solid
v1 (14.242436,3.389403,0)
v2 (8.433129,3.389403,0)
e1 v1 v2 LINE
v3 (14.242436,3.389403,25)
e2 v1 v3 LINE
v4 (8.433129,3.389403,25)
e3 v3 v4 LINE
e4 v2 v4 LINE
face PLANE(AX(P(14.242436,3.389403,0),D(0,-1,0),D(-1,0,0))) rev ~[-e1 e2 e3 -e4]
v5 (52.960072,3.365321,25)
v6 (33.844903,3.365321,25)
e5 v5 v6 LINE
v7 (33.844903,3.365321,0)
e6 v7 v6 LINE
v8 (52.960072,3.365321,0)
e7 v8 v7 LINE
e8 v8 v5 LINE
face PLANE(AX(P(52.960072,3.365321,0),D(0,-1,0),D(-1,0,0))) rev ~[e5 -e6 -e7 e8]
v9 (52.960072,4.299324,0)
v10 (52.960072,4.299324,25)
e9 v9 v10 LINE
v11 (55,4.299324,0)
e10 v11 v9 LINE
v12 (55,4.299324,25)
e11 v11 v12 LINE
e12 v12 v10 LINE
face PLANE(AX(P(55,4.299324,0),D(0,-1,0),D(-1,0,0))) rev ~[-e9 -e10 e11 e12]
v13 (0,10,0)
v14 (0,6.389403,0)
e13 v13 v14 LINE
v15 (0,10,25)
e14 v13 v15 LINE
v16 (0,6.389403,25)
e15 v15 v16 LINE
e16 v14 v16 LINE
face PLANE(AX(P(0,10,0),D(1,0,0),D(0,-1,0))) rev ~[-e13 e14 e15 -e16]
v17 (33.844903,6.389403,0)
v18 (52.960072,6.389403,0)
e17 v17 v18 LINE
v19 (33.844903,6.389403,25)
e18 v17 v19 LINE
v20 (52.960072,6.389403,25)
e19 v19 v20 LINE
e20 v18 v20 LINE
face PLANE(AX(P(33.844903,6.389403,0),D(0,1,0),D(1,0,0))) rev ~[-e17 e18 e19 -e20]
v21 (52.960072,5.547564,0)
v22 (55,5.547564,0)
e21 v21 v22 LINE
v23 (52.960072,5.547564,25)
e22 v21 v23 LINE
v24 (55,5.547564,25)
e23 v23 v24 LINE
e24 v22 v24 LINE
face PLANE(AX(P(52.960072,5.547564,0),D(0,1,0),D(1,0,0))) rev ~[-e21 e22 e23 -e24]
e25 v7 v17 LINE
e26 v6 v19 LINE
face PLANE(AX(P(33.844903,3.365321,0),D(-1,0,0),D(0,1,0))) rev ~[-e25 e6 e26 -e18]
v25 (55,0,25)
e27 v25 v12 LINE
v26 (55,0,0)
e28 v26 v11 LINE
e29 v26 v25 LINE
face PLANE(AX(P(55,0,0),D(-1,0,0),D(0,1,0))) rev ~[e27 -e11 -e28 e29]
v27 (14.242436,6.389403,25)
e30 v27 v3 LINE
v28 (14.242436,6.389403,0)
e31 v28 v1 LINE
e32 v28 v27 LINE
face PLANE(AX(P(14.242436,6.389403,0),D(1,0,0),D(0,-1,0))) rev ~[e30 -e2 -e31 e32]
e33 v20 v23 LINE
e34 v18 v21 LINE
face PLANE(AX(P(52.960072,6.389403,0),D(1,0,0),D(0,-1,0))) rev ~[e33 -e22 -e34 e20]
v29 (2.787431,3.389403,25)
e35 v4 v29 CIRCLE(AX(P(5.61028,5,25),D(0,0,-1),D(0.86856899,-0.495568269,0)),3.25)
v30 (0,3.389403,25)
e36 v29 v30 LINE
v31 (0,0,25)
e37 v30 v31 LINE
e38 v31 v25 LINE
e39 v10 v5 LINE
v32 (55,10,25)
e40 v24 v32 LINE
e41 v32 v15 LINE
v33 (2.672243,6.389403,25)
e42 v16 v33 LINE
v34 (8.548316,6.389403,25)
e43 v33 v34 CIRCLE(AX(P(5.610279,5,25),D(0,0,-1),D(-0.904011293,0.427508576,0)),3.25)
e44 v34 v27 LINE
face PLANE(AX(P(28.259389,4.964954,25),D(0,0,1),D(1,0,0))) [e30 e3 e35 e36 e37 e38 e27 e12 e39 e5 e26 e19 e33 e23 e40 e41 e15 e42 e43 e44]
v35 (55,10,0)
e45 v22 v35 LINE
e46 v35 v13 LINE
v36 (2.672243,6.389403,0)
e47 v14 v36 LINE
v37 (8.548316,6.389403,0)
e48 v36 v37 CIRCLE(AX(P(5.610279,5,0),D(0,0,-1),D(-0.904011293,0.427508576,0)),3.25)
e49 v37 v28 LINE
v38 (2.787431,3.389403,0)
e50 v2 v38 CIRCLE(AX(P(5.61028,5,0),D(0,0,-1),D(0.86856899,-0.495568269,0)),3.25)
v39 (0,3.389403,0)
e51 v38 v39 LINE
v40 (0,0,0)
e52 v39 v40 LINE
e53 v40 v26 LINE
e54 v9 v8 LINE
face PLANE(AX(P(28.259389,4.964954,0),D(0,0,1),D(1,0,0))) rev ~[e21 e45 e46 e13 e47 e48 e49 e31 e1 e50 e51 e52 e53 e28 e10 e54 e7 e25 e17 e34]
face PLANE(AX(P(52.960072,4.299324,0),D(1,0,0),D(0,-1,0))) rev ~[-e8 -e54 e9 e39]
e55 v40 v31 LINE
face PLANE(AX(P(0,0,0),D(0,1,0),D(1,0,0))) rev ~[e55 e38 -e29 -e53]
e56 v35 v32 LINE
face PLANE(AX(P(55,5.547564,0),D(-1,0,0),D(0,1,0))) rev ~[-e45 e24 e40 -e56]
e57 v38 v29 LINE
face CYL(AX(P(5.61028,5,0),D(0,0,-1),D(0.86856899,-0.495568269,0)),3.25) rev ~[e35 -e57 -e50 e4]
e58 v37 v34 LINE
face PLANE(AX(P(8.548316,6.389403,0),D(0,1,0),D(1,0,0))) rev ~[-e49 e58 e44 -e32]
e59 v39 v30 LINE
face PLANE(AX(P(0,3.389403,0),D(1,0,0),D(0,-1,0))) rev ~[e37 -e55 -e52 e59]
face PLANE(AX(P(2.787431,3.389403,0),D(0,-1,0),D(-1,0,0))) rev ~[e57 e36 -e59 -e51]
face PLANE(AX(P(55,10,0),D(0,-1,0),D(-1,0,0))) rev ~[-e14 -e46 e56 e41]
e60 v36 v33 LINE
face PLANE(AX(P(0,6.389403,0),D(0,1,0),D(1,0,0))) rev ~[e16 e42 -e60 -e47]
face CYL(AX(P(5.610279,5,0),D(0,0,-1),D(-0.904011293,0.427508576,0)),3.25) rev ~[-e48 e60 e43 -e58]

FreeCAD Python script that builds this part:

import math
import FreeCAD as App
import Part
import Sketcher

V = App.Vector

doc = App.newDocument("Part")
body = doc.addObject("PartDesign::Body", "Body")

# Sketch on XY plane
sketch1 = doc.addObject("Sketcher::SketchObject", "Sketch")
body.addObject(sketch1)
sketch1.AttachmentSupport = (doc.XY_Plane, [""])
sketch1.MapMode = "FlatFace"
sketch1.addGeometry(Part.LineSegment(V(0, 3.389403, 0), V(0, 0, 0)), False)
sketch1.addGeometry(Part.LineSegment(V(0, 0, 0), V(55, 0, 0)), False)
sketch1.addGeometry(Part.LineSegment(V(55, 0, 0), V(55, 4.299324, 0)), False)
sketch1.addGeometry(Part.LineSegment(V(55, 4.299324, 0), V(52.960072, 4.299324, 0)), False)
sketch1.addGeometry(Part.LineSegment(V(52.960072, 4.299324, 0), V(52.960072, 3.365321, 0)), False)
sketch1.addGeometry(Part.LineSegment(V(52.960072, 3.365321, 0), V(33.844903, 3.365321, 0)), False)
sketch1.addGeometry(Part.LineSegment(V(33.844903, 3.365321, 0), V(33.844903, 6.389403, 0)), False)
sketch1.addGeometry(Part.LineSegment(V(33.844903, 6.389403, 0), V(52.960072, 6.389403, 0)), False)
sketch1.addGeometry(Part.LineSegment(V(52.960072, 6.389403, 0), V(52.960072, 5.547564, 0)), False)
sketch1.addGeometry(Part.LineSegment(V(52.960072, 5.547564, 0), V(55, 5.547564, 0)), False)
sketch1.addGeometry(Part.LineSegment(V(55, 5.547564, 0), V(55, 10, 0)), False)
sketch1.addGeometry(Part.LineSegment(V(55, 10, 0), V(0, 10, 0)), False)
sketch1.addGeometry(Part.LineSegment(V(0, 10, 0), V(0, 6.389403, 0)), False)
sketch1.addGeometry(Part.LineSegment(V(0, 6.389403, 0), V(2.672243, 6.389403, 0)), False)
sketch1.addGeometry(Part.ArcOfCircle(Part.Circle(V(5.610279, 5, 0), V(0, 0, 1), 3.25), math.radians(25.309552), math.radians(154.690448)), False)
sketch1.addGeometry(Part.LineSegment(V(8.548316, 6.389403, 0), V(14.242436, 6.389403, 0)), False)
sketch1.addGeometry(Part.LineSegment(V(14.242436, 6.389403, 0), V(14.242436, 3.389403, 0)), False)
sketch1.addGeometry(Part.LineSegment(V(14.242436, 3.389403, 0), V(8.433129, 3.389403, 0)), False)
sketch1.addGeometry(Part.ArcOfCircle(Part.Circle(V(5.61028, 5, 0), V(0, 0, 1), 3.25), math.radians(-150.29277), math.radians(-29.70723)), False)
sketch1.addGeometry(Part.LineSegment(V(2.787431, 3.389403, 0), V(0, 3.389403, 0)), False)
sketch1.addConstraint(Sketcher.Constraint("Coincident", 0, 2, 1, 1))
sketch1.addConstraint(Sketcher.Constraint("Coincident", 1, 2, 2, 1))
sketch1.addConstraint(Sketcher.Constraint("Coincident", 2, 2, 3, 1))
sketch1.addConstraint(Sketcher.Constraint("Coincident", 3, 2, 4, 1))
sketch1.addConstraint(Sketcher.Constraint("Coincident", 4, 2, 5, 1))
sketch1.addConstraint(Sketcher.Constraint("Coincident", 5, 2, 6, 1))
sketch1.addConstraint(Sketcher.Constraint("Coincident", 6, 2, 7, 1))
sketch1.addConstraint(Sketcher.Constraint("Coincident", 7, 2, 8, 1))
sketch1.addConstraint(Sketcher.Constraint("Coincident", 8, 2, 9, 1))
sketch1.addConstraint(Sketcher.Constraint("Coincident", 9, 2, 10, 1))
sketch1.addConstraint(Sketcher.Constraint("Coincident", 10, 2, 11, 1))
sketch1.addConstraint(Sketcher.Constraint("Coincident", 11, 2, 12, 1))
sketch1.addConstraint(Sketcher.Constraint("Coincident", 12, 2, 13, 1))
sketch1.addConstraint(Sketcher.Constraint("Coincident", 13, 2, 14, 2))
sketch1.addConstraint(Sketcher.Constraint("Coincident", 14, 1, 15, 1))
sketch1.addConstraint(Sketcher.Constraint("Coincident", 15, 2, 16, 1))
sketch1.addConstraint(Sketcher.Constraint("Coincident", 16, 2, 17, 1))
sketch1.addConstraint(Sketcher.Constraint("Coincident", 17, 2, 18, 2))
sketch1.addConstraint(Sketcher.Constraint("Coincident", 18, 1, 19, 1))
sketch1.addConstraint(Sketcher.Constraint("Coincident", 19, 2, 0, 1))
sketch1.addConstraint(Sketcher.Constraint("Vertical", 0))
sketch1.addConstraint(Sketcher.Constraint("Horizontal", 1))
sketch1.addConstraint(Sketcher.Constraint("Vertical", 2))
sketch1.addConstraint(Sketcher.Constraint("Horizontal", 3))
sketch1.addConstraint(Sketcher.Constraint("Vertical", 4))
sketch1.addConstraint(Sketcher.Constraint("Horizontal", 5))
sketch1.addConstraint(Sketcher.Constraint("Vertical", 6))
sketch1.addConstraint(Sketcher.Constraint("Horizontal", 7))
sketch1.addConstraint(Sketcher.Constraint("Vertical", 8))
sketch1.addConstraint(Sketcher.Constraint("Horizontal", 9))
sketch1.addConstraint(Sketcher.Constraint("Vertical", 10))
sketch1.addConstraint(Sketcher.Constraint("Horizontal", 11))
sketch1.addConstraint(Sketcher.Constraint("Vertical", 12))
sketch1.addConstraint(Sketcher.Constraint("Horizontal", 13))
sketch1.addConstraint(Sketcher.Constraint("Horizontal", 15))
sketch1.addConstraint(Sketcher.Constraint("Vertical", 16))
sketch1.addConstraint(Sketcher.Constraint("Horizontal", 17))
sketch1.addConstraint(Sketcher.Constraint("Horizontal", 19))
sketch1.addConstraint(Sketcher.Constraint("Coincident", 0, 2, -1, 1))
sketch1.addConstraint(Sketcher.Constraint("Coincident", 18, 3, 14, 3))
sketch1.addConstraint(Sketcher.Constraint("Equal", 14, 18))
sketch1.addConstraint(Sketcher.Constraint("PointOnObject", 11, 2, -2))
sketch1.addConstraint(Sketcher.Constraint("Horizontal", 7, 2, 12, 2))
sketch1.addConstraint(Sketcher.Constraint("Horizontal", 13, 2, 14, 1))
sketch1.addConstraint(Sketcher.Constraint("Horizontal", 17, 2, 18, 1))
sketch1.addConstraint(Sketcher.Constraint("Vertical", 4, 2, 7, 2))
sketch1.addConstraint(Sketcher.Constraint("Vertical", 2, 2, 9, 2))
sketch1.addConstraint(Sketcher.Constraint("DistanceX", 1, 1, 1, 2, 55.0))
sketch1.addConstraint(Sketcher.Constraint("DistanceY", 16, 2, 16, 1, 3.0))
sketch1.addConstraint(Sketcher.Constraint("Radius", 14, 3.25))
sketch1.addConstraint(Sketcher.Constraint("DistanceY", -1, 1, 14, 3, 5.0))
sketch1.addConstraint(Sketcher.Constraint("DistanceY", -1, 1, 10, 2, 10.0))
sketch1.addConstraint(Sketcher.Constraint("DistanceX", 3, 2, 3, 1, 2.039928))
sketch1.addConstraint(Sketcher.Constraint("DistanceX", 5, 2, 5, 1, 19.115169))
sketch1.addConstraint(Sketcher.Constraint("DistanceX", 15, 1, 15, 2, 5.69412))
sketch1.addConstraint(Sketcher.Constraint("DistanceX", 19, 2, 19, 1, 2.787431))
sketch1.addConstraint(Sketcher.Constraint("DistanceY", 6, 1, 6, 2, 3.024082))
sketch1.addConstraint(Sketcher.Constraint("DistanceY", 8, 2, 8, 1, 0.841839))
sketch1.addConstraint(Sketcher.Constraint("DistanceX", 13, 1, 13, 2, 2.672243))
sketch1.addConstraint(Sketcher.Constraint("DistanceY", 2, 1, 2, 2, 4.299324))
pad1 = doc.addObject("PartDesign::Pad", "Pad")
body.addObject(pad1)
pad1.Profile = sketch1
pad1.Length = 25

doc.recompute()
